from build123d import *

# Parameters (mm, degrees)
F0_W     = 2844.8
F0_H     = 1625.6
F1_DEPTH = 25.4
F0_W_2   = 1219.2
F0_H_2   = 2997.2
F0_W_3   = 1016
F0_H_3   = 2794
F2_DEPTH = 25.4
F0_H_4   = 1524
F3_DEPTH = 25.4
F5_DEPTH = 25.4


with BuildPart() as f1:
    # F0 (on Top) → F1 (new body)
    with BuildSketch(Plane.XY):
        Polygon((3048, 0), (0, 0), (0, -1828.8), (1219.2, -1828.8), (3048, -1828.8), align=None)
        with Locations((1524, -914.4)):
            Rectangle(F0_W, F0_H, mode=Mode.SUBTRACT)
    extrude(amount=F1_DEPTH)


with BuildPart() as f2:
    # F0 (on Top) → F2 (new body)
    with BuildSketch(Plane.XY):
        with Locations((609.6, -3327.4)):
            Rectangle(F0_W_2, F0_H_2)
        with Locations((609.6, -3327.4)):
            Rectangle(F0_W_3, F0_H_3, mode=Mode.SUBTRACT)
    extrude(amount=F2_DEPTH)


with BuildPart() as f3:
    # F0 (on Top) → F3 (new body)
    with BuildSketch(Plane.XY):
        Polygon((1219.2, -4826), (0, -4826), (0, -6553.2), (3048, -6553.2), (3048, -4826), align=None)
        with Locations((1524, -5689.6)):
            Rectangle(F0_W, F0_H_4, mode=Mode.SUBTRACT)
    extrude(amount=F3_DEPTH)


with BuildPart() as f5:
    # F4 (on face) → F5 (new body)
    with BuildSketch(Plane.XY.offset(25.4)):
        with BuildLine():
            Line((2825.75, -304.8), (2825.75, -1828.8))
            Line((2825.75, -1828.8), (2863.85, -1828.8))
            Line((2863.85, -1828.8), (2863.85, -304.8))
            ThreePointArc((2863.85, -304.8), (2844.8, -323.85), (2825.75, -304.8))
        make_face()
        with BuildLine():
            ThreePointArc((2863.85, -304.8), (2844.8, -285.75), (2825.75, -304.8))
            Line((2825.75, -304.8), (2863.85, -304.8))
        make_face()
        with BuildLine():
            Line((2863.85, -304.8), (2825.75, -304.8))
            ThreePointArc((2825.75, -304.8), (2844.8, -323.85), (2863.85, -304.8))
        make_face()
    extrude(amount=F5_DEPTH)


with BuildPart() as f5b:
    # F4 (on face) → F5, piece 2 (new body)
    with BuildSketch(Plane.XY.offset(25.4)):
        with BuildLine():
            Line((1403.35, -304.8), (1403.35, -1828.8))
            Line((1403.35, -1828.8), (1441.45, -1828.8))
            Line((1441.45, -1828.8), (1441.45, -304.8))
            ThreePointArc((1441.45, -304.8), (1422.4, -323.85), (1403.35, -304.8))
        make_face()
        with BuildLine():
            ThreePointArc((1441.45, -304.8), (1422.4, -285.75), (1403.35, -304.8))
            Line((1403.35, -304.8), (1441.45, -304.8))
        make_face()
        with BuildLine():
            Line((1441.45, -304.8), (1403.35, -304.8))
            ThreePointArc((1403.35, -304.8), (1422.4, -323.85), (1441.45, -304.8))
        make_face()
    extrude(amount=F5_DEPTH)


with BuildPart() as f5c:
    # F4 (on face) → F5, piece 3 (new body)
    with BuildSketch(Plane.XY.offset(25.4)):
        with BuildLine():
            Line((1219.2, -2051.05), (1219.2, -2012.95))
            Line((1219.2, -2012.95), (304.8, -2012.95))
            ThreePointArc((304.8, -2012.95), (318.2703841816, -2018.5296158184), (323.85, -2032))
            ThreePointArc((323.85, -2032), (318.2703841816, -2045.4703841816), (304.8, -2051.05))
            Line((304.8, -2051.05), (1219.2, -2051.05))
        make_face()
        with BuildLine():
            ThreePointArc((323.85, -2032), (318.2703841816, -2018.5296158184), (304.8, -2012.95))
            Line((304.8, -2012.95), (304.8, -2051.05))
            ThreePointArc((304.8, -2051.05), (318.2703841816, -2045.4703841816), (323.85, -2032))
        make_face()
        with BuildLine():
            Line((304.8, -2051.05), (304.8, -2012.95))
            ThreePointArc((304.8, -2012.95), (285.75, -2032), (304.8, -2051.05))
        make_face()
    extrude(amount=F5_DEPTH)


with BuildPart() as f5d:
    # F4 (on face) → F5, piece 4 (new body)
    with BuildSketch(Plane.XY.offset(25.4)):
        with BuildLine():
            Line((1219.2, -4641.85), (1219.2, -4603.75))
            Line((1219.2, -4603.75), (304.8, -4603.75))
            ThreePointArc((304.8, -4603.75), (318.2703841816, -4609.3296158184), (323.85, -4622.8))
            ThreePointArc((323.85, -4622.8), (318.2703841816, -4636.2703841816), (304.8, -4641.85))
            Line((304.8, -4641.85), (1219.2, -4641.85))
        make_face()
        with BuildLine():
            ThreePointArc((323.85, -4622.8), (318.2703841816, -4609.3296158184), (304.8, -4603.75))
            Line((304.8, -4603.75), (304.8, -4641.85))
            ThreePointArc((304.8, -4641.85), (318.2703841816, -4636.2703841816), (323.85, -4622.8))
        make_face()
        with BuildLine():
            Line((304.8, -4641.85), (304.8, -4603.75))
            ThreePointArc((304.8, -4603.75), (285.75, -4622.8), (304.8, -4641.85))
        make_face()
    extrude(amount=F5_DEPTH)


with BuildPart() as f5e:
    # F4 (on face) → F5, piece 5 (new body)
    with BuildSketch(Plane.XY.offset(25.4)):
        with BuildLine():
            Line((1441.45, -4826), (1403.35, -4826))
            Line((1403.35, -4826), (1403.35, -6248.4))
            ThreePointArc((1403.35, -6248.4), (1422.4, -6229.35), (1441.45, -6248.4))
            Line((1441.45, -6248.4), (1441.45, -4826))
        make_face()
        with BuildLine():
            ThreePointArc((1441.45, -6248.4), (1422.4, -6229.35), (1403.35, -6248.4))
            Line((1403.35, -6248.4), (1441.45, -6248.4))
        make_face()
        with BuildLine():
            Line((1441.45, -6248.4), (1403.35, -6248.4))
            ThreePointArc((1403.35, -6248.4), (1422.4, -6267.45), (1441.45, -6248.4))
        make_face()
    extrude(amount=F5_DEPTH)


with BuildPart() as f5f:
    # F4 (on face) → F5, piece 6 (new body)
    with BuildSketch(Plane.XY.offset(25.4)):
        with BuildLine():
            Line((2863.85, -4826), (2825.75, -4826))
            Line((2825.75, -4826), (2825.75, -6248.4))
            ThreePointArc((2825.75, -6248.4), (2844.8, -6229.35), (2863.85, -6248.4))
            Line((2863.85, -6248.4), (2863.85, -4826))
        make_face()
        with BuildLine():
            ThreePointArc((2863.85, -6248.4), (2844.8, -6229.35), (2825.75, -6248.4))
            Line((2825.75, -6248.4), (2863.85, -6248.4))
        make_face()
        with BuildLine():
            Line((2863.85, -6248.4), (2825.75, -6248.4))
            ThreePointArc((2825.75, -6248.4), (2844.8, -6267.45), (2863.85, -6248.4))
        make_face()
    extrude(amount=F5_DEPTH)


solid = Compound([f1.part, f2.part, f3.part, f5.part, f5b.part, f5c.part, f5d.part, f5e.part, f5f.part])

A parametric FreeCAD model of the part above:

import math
import FreeCAD as App
import Part
import Sketcher
from FreeCAD import Vector
Q = App.Units.Quantity


def add_polygon(sketch, points):
    """Adds a closed chain of lines whose ends are joined by coincident constraints."""
    first, n = sketch.GeometryCount, len(points)
    for a, b in zip(points, points[1:] + points[:1]):
        sketch.addGeometry(Part.LineSegment(App.Vector(*a, 0), App.Vector(*b, 0)), False)
    for i in range(n):
        sketch.addConstraint(Sketcher.Constraint("Coincident", first + i, 2, first + (i + 1) % n, 1))

doc = App.newDocument("Part")
body = doc.addObject("PartDesign::Body", "Body")

# Sketch on XY plane
sketch1 = body.newObject("Sketcher::SketchObject", "Sketch")
sketch1.AttachmentSupport = (doc.getObject("XY_Plane"), [""])
sketch1.MapMode = "FlatFace"
add_polygon(sketch1, [(3048, 0), (0, 0), (0, -1829), (3048, -1829)])  # lines 0-3
add_polygon(sketch1, [(2946, -1727), (102, -1727), (102, -102), (2946, -102)])  # lines 4-7
sketch1.addConstraint(Sketcher.Constraint("Horizontal", 0))
sketch1.addConstraint(Sketcher.Constraint("Vertical", 1))
sketch1.addConstraint(Sketcher.Constraint("Horizontal", 2))
sketch1.addConstraint(Sketcher.Constraint("Vertical", 3))
sketch1.addConstraint(Sketcher.Constraint("Horizontal", 4))
sketch1.addConstraint(Sketcher.Constraint("Vertical", 5))
sketch1.addConstraint(Sketcher.Constraint("Horizontal", 6))
sketch1.addConstraint(Sketcher.Constraint("Vertical", 7))
sketch1.addConstraint(Sketcher.Constraint("Coincident", 0, 2, -1, 1))
sketch1.addConstraint(Sketcher.Constraint("DistanceX", 0, 2, 0, 1, Q("120 in")))
sketch1.addConstraint(Sketcher.Constraint("DistanceX", 4, 2, 4, 1, Q("112 in")))
sketch1.addConstraint(Sketcher.Constraint("DistanceY", 1, 2, 1, 1, Q("72 in")))
sketch1.addConstraint(Sketcher.Constraint("DistanceY", 5, 1, 5, 2, Q("64 in")))
sketch1.addConstraint(Sketcher.Constraint("DistanceX", -1, 1, 4, 2, Q("4 in")))
sketch1.addConstraint(Sketcher.Constraint("DistanceY", 4, 2, -1, 1, Q("68 in")))
pad1 = body.newObject("PartDesign::Pad", "Pad")
pad1.Profile = sketch1
pad1.Length = Q("1 in")
body2 = doc.addObject("PartDesign::Body", "Body001")

# Sketch on XY plane
sketch2 = body2.newObject("Sketcher::SketchObject", "Sketch001")
sketch2.AttachmentSupport = (doc.getObject("XY_Plane001"), [""])
sketch2.MapMode = "FlatFace"
add_polygon(sketch2, [(0, -1829), (0, -4826), (1219, -4826), (1219, -1829)])  # lines 0-3
add_polygon(sketch2, [(1118, -4724), (102, -4724), (102, -1930), (1118, -1930)])  # lines 4-7
sketch2.addConstraint(Sketcher.Constraint("Vertical", 0))
sketch2.addConstraint(Sketcher.Constraint("Horizontal", 1))
sketch2.addConstraint(Sketcher.Constraint("Vertical", 2))
sketch2.addConstraint(Sketcher.Constraint("Horizontal", 3))
sketch2.addConstraint(Sketcher.Constraint("Horizontal", 4))
sketch2.addConstraint(Sketcher.Constraint("Vertical", 5))
sketch2.addConstraint(Sketcher.Constraint("Horizontal", 6))
sketch2.addConstraint(Sketcher.Constraint("Vertical", 7))
sketch2.addConstraint(Sketcher.Constraint("PointOnObject", 0, 2, -2))
sketch2.addConstraint(Sketcher.Constraint("DistanceX", 1, 1, 1, 2, Q("48 in")))
sketch2.addConstraint(Sketcher.Constraint("DistanceX", 4, 2, 4, 1, Q("40 in")))
sketch2.addConstraint(Sketcher.Constraint("DistanceY", 0, 2, 0, 1, Q("118 in")))
sketch2.addConstraint(Sketcher.Constraint("DistanceY", 5, 1, 5, 2, Q("110 in")))
sketch2.addConstraint(Sketcher.Constraint("DistanceY", 0, 2, -1, 1, Q("190 in")))
sketch2.addConstraint(Sketcher.Constraint("DistanceX", -1, 1, 4, 2, Q("4 in")))
sketch2.addConstraint(Sketcher.Constraint("DistanceY", 4, 2, -1, 1, Q("186 in")))
pad2 = body2.newObject("PartDesign::Pad", "Pad001")
pad2.Profile = sketch2
pad2.Length = Q("1 in")
body3 = doc.addObject("PartDesign::Body", "Body002")

# Sketch on XY plane
sketch3 = body3.newObject("Sketcher::SketchObject", "Sketch002")
sketch3.AttachmentSupport = (doc.getObject("XY_Plane002"), [""])
sketch3.MapMode = "FlatFace"
add_polygon(sketch3, [(0, -4826), (0, -6553), (3048, -6553), (3048, -4826)])  # lines 0-3
add_polygon(sketch3, [(2946, -6452), (102, -6452), (102, -4928), (2946, -4928)])  # lines 4-7
sketch3.addConstraint(Sketcher.Constraint("Vertical", 0))
sketch3.addConstraint(Sketcher.Constraint("Horizontal", 1))
sketch3.addConstraint(Sketcher.Constraint("Vertical", 2))
sketch3.addConstraint(Sketcher.Constraint("Horizontal", 3))
sketch3.addConstraint(Sketcher.Constraint("Horizontal", 4))
sketch3.addConstraint(Sketcher.Constraint("Vertical", 5))
sketch3.addConstraint(Sketcher.Constraint("Horizontal", 6))
sketch3.addConstraint(Sketcher.Constraint("Vertical", 7))
sketch3.addConstraint(Sketcher.Constraint("PointOnObject", 0, 2, -2))
sketch3.addConstraint(Sketcher.Constraint("DistanceX", 1, 1, 1, 2, Q("120 in")))
sketch3.addConstraint(Sketcher.Constraint("DistanceX", 4, 2, 4, 1, Q("112 in")))
sketch3.addConstraint(Sketcher.Constraint("DistanceY", 0, 2, 0, 1, Q("68 in")))
sketch3.addConstraint(Sketcher.Constraint("DistanceY", 5, 1, 5, 2, Q("60 in")))
sketch3.addConstraint(Sketcher.Constraint("DistanceY", 0, 2, -1, 1, Q("258 in")))
sketch3.addConstraint(Sketcher.Constraint("DistanceX", -1, 1, 4, 2, Q("4 in")))
sketch3.addConstraint(Sketcher.Constraint("DistanceY", 4, 2, -1, 1, Q("254 in")))
pad3 = body3.newObject("PartDesign::Pad", "Pad002")
pad3.Profile = sketch3
pad3.Length = Q("1 in")
body4 = doc.addObject("PartDesign::Body", "Body003")

# Sketch on XY plane
sketch4 = body4.newObject("Sketcher::SketchObject", "Sketch003")
sketch4.AttachmentSupport = (doc.getObject("XY_Plane003"), [""])
sketch4.MapMode = "FlatFace"
sketch4.AttachmentOffset = App.Placement(Vector(0, 0, 1 * 25.4), App.Rotation())
sketch4.addGeometry(Part.LineSegment(Vector(2826, -305, 0), Vector(2826, -1829, 0)), False)
sketch4.addGeometry(Part.LineSegment(Vector(2826, -1829, 0), Vector(2864, -1829, 0)), False)
sketch4.addGeometry(Part.LineSegment(Vector(2864, -1829, 0), Vector(2864, -305, 0)), False)
sketch4.addGeometry(Part.ArcOfCircle(Part.Circle(Vector(2845, -305, 0), Vector(0, 0, 1), 19), math.radians(0), math.radians(180)), False)
sketch4.addConstraint(Sketcher.Constraint("Coincident", 0, 2, 1, 1))
sketch4.addConstraint(Sketcher.Constraint("Coincident", 1, 2, 2, 1))
sketch4.addConstraint(Sketcher.Constraint("Tangent", 2, 2, 3, 1))
sketch4.addConstraint(Sketcher.Constraint("Tangent", 3, 2, 0, 1))
sketch4.addConstraint(Sketcher.Constraint("Vertical", 0))
sketch4.addConstraint(Sketcher.Constraint("Horizontal", 1))
sketch4.addConstraint(Sketcher.Constraint("Vertical", 2))
sketch4.addConstraint(Sketcher.Constraint("DistanceY", 0, 2, 0, 1, Q("60 in")))
sketch4.addConstraint(Sketcher.Constraint("Radius", 3, Q("0.75 in")))
sketch4.addConstraint(Sketcher.Constraint("DistanceX", -1, 1, 3, 3, Q("112 in")))
sketch4.addConstraint(Sketcher.Constraint("DistanceY", 3, 3, -1, 1, Q("12 in")))
pad4 = body4.newObject("PartDesign::Pad", "Pad003")
pad4.Profile = sketch4
pad4.Length = Q("1 in")
body5 = doc.addObject("PartDesign::Body", "Body004")

# Sketch on XY plane
sketch5 = body5.newObject("Sketcher::SketchObject", "Sketch004")
sketch5.AttachmentSupport = (doc.getObject("XY_Plane004"), [""])
sketch5.MapMode = "FlatFace"
sketch5.AttachmentOffset = App.Placement(Vector(0, 0, 1 * 25.4), App.Rotation())
sketch5.addGeometry(Part.LineSegment(Vector(1403, -305, 0), Vector(1403, -1829, 0)), False)
sketch5.addGeometry(Part.LineSegment(Vector(1403, -1829, 0), Vector(1441, -1829, 0)), False)
sketch5.addGeometry(Part.LineSegment(Vector(1441, -1829, 0), Vector(1441, -305, 0)), False)
sketch5.addGeometry(Part.ArcOfCircle(Part.Circle(Vector(1422, -305, 0), Vector(0, 0, 1), 19), math.radians(0), math.radians(180)), False)
sketch5.addConstraint(Sketcher.Constraint("Coincident", 0, 2, 1, 1))
sketch5.addConstraint(Sketcher.Constraint("Coincident", 1, 2, 2, 1))
sketch5.addConstraint(Sketcher.Constraint("Tangent", 2, 2, 3, 1))
sketch5.addConstraint(Sketcher.Constraint("Tangent", 3, 2, 0, 1))
sketch5.addConstraint(Sketcher.Constraint("Vertical", 0))
sketch5.addConstraint(Sketcher.Constraint("Horizontal", 1))
sketch5.addConstraint(Sketcher.Constraint("Vertical", 2))
sketch5.addConstraint(Sketcher.Constraint("DistanceY", 0, 2, 0, 1, Q("60 in")))
sketch5.addConstraint(Sketcher.Constraint("Radius", 3, Q("0.75 in")))
sketch5.addConstraint(Sketcher.Constraint("DistanceX", -1, 1, 3, 3, Q("56 in")))
sketch5.addConstraint(Sketcher.Constraint("DistanceY", 3, 3, -1, 1, Q("12 in")))
pad5 = body5.newObject("PartDesign::Pad", "Pad004")
pad5.Profile = sketch5
pad5.Length = Q("1 in")
body6 = doc.addObject("PartDesign::Body", "Body005")

# Sketch on XY plane
sketch6 = body6.newObject("Sketcher::SketchObject", "Sketch005")
sketch6.AttachmentSupport = (doc.getObject("XY_Plane005"), [""])
sketch6.MapMode = "FlatFace"
sketch6.AttachmentOffset = App.Placement(Vector(0, 0, 1 * 25.4), App.Rotation())
sketch6.addGeometry(Part.LineSegment(Vector(1219, -2051, 0), Vector(1219, -2013, 0)), False)
sketch6.addGeometry(Part.LineSegment(Vector(1219, -2013, 0), Vector(305, -2013, 0)), False)
sketch6.addGeometry(Part.ArcOfCircle(Part.Circle(Vector(305, -2032, 0), Vector(0, 0, 1), 19), math.radians(90), math.radians(270)), False)
sketch6.addGeometry(Part.LineSegment(Vector(305, -2051, 0), Vector(1219, -2051, 0)), False)
sketch6.addConstraint(Sketcher.Constraint("Coincident", 0, 2, 1, 1))
sketch6.addConstraint(Sketcher.Constraint("Tangent", 1, 2, 2, 1))
sketch6.addConstraint(Sketcher.Constraint("Tangent", 2, 2, 3, 1))
sketch6.addConstraint(Sketcher.Constraint("Coincident", 3, 2, 0, 1))
sketch6.addConstraint(Sketcher.Constraint("Vertical", 0))
sketch6.addConstraint(Sketcher.Constraint("Horizontal", 1))
sketch6.addConstraint(Sketcher.Constraint("Horizontal", 3))
sketch6.addConstraint(Sketcher.Constraint("DistanceX", 1, 2, 1, 1, Q("36 in")))
sketch6.addConstraint(Sketcher.Constraint("Radius", 2, Q("0.75 in")))
sketch6.addConstraint(Sketcher.Constraint("DistanceX", -1, 1, 2, 3, Q("12 in")))
sketch6.addConstraint(Sketcher.Constraint("DistanceY", 2, 3, -1, 1, Q("80 in")))
pad6 = body6.newObject("PartDesign::Pad", "Pad005")
pad6.Profile = sketch6
pad6.Length = Q("1 in")
body7 = doc.addObject("PartDesign::Body", "Body006")

# Sketch on XY plane
sketch7 = body7.newObject("Sketcher::SketchObject", "Sketch006")
sketch7.AttachmentSupport = (doc.getObject("XY_Plane006"), [""])
sketch7.MapMode = "FlatFace"
sketch7.AttachmentOffset = App.Placement(Vector(0, 0, 1 * 25.4), App.Rotation())
sketch7.addGeometry(Part.LineSegment(Vector(1219, -4642, 0), Vector(1219, -4604, 0)), False)
sketch7.addGeometry(Part.LineSegment(Vector(1219, -4604, 0), Vector(305, -4604, 0)), False)
sketch7.addGeometry(Part.ArcOfCircle(Part.Circle(Vector(305, -4623, 0), Vector(0, 0, 1), 19), math.radians(90), math.radians(270)), False)
sketch7.addGeometry(Part.LineSegment(Vector(305, -4642, 0), Vector(1219, -4642, 0)), False)
sketch7.addConstraint(Sketcher.Constraint("Coincident", 0, 2, 1, 1))
sketch7.addConstraint(Sketcher.Constraint("Tangent", 1, 2, 2, 1))
sketch7.addConstraint(Sketcher.Constraint("Tangent", 2, 2, 3, 1))
sketch7.addConstraint(Sketcher.Constraint("Coincident", 3, 2, 0, 1))
sketch7.addConstraint(Sketcher.Constraint("Vertical", 0))
sketch7.addConstraint(Sketcher.Constraint("Horizontal", 1))
sketch7.addConstraint(Sketcher.Constraint("Horizontal", 3))
sketch7.addConstraint(Sketcher.Constraint("DistanceX", 1, 2, 1, 1, Q("36 in")))
sketch7.addConstraint(Sketcher.Constraint("Radius", 2, Q("0.75 in")))
sketch7.addConstraint(Sketcher.Constraint("DistanceX", -1, 1, 2, 3, Q("12 in")))
sketch7.addConstraint(Sketcher.Constraint("DistanceY", 2, 3, -1, 1, Q("182 in")))
pad7 = body7.newObject("PartDesign::Pad", "Pad006")
pad7.Profile = sketch7
pad7.Length = Q("1 in")
body8 = doc.addObject("PartDesign::Body", "Body007")

# Sketch on XY plane
sketch8 = body8.newObject("Sketcher::SketchObject", "Sketch007")
sketch8.AttachmentSupport = (doc.getObject("XY_Plane007"), [""])
sketch8.MapMode = "FlatFace"
sketch8.AttachmentOffset = App.Placement(Vector(0, 0, 1 * 25.4), App.Rotation())
sketch8.addGeometry(Part.LineSegment(Vector(1441, -4826, 0), Vector(1403, -4826, 0)), False)
sketch8.addGeometry(Part.LineSegment(Vector(1403, -4826, 0), Vector(1403, -6248, 0)), False)
sketch8.addGeometry(Part.ArcOfCircle(Part.Circle(Vector(1422, -6248, 0), Vector(0, 0, 1), 19), math.radians(180), math.radians(360)), False)
sketch8.addGeometry(Part.LineSegment(Vector(1441, -6248, 0), Vector(1441, -4826, 0)), False)
sketch8.addConstraint(Sketcher.Constraint("Coincident", 0, 2, 1, 1))
sketch8.addConstraint(Sketcher.Constraint("Tangent", 1, 2, 2, 1))
sketch8.addConstraint(Sketcher.Constraint("Tangent", 2, 2, 3, 1))
sketch8.addConstraint(Sketcher.Constraint("Coincident", 3, 2, 0, 1))
sketch8.addConstraint(Sketcher.Constraint("Horizontal", 0))
sketch8.addConstraint(Sketcher.Constraint("Vertical", 1))
sketch8.addConstraint(Sketcher.Constraint("Vertical", 3))
sketch8.addConstraint(Sketcher.Constraint("DistanceY", 1, 2, 1, 1, Q("56 in")))
sketch8.addConstraint(Sketcher.Constraint("Radius", 2, Q("0.75 in")))
sketch8.addConstraint(Sketcher.Constraint("DistanceX", -1, 1, 2, 3, Q("56 in")))
sketch8.addConstraint(Sketcher.Constraint("DistanceY", 2, 3, -1, 1, Q("246 in")))
pad8 = body8.newObject("PartDesign::Pad", "Pad007")
pad8.Profile = sketch8
pad8.Length = Q("1 in")
body9 = doc.addObject("PartDesign::Body", "Body008")

# Sketch on XY plane
sketch9 = body9.newObject("Sketcher::SketchObject", "Sketch008")
sketch9.AttachmentSupport = (doc.getObject("XY_Plane008"), [""])
sketch9.MapMode = "FlatFace"
sketch9.AttachmentOffset = App.Placement(Vector(0, 0, 1 * 25.4), App.Rotation())
sketch9.addGeometry(Part.LineSegment(Vector(2864, -4826, 0), Vector(2826, -4826, 0)), False)
sketch9.addGeometry(Part.LineSegment(Vector(2826, -4826, 0), Vector(2826, -6248, 0)), False)
sketch9.addGeometry(Part.ArcOfCircle(Part.Circle(Vector(2845, -6248, 0), Vector(0, 0, 1), 19), math.radians(180), math.radians(360)), False)
sketch9.addGeometry(Part.LineSegment(Vector(2864, -6248, 0), Vector(2864, -4826, 0)), False)
sketch9.addConstraint(Sketcher.Constraint("Coincident", 0, 2, 1, 1))
sketch9.addConstraint(Sketcher.Constraint("Tangent", 1, 2, 2, 1))
sketch9.addConstraint(Sketcher.Constraint("Tangent", 2, 2, 3, 1))
sketch9.addConstraint(Sketcher.Constraint("Coincident", 3, 2, 0, 1))
sketch9.addConstraint(Sketcher.Constraint("Horizontal", 0))
sketch9.addConstraint(Sketcher.Constraint("Vertical", 1))
sketch9.addConstraint(Sketcher.Constraint("Vertical", 3))
sketch9.addConstraint(Sketcher.Constraint("DistanceY", 1, 2, 1, 1, Q("56 in")))
sketch9.addConstraint(Sketcher.Constraint("Radius", 2, Q("0.75 in")))
sketch9.addConstraint(Sketcher.Constraint("DistanceX", -1, 1, 2, 3, Q("112 in")))
sketch9.addConstraint(Sketcher.Constraint("DistanceY", 2, 3, -1, 1, Q("246 in")))
pad9 = body9.newObject("PartDesign::Pad", "Pad008")
pad9.Profile = sketch9
pad9.Length = Q("1 in")

doc.recompute()
